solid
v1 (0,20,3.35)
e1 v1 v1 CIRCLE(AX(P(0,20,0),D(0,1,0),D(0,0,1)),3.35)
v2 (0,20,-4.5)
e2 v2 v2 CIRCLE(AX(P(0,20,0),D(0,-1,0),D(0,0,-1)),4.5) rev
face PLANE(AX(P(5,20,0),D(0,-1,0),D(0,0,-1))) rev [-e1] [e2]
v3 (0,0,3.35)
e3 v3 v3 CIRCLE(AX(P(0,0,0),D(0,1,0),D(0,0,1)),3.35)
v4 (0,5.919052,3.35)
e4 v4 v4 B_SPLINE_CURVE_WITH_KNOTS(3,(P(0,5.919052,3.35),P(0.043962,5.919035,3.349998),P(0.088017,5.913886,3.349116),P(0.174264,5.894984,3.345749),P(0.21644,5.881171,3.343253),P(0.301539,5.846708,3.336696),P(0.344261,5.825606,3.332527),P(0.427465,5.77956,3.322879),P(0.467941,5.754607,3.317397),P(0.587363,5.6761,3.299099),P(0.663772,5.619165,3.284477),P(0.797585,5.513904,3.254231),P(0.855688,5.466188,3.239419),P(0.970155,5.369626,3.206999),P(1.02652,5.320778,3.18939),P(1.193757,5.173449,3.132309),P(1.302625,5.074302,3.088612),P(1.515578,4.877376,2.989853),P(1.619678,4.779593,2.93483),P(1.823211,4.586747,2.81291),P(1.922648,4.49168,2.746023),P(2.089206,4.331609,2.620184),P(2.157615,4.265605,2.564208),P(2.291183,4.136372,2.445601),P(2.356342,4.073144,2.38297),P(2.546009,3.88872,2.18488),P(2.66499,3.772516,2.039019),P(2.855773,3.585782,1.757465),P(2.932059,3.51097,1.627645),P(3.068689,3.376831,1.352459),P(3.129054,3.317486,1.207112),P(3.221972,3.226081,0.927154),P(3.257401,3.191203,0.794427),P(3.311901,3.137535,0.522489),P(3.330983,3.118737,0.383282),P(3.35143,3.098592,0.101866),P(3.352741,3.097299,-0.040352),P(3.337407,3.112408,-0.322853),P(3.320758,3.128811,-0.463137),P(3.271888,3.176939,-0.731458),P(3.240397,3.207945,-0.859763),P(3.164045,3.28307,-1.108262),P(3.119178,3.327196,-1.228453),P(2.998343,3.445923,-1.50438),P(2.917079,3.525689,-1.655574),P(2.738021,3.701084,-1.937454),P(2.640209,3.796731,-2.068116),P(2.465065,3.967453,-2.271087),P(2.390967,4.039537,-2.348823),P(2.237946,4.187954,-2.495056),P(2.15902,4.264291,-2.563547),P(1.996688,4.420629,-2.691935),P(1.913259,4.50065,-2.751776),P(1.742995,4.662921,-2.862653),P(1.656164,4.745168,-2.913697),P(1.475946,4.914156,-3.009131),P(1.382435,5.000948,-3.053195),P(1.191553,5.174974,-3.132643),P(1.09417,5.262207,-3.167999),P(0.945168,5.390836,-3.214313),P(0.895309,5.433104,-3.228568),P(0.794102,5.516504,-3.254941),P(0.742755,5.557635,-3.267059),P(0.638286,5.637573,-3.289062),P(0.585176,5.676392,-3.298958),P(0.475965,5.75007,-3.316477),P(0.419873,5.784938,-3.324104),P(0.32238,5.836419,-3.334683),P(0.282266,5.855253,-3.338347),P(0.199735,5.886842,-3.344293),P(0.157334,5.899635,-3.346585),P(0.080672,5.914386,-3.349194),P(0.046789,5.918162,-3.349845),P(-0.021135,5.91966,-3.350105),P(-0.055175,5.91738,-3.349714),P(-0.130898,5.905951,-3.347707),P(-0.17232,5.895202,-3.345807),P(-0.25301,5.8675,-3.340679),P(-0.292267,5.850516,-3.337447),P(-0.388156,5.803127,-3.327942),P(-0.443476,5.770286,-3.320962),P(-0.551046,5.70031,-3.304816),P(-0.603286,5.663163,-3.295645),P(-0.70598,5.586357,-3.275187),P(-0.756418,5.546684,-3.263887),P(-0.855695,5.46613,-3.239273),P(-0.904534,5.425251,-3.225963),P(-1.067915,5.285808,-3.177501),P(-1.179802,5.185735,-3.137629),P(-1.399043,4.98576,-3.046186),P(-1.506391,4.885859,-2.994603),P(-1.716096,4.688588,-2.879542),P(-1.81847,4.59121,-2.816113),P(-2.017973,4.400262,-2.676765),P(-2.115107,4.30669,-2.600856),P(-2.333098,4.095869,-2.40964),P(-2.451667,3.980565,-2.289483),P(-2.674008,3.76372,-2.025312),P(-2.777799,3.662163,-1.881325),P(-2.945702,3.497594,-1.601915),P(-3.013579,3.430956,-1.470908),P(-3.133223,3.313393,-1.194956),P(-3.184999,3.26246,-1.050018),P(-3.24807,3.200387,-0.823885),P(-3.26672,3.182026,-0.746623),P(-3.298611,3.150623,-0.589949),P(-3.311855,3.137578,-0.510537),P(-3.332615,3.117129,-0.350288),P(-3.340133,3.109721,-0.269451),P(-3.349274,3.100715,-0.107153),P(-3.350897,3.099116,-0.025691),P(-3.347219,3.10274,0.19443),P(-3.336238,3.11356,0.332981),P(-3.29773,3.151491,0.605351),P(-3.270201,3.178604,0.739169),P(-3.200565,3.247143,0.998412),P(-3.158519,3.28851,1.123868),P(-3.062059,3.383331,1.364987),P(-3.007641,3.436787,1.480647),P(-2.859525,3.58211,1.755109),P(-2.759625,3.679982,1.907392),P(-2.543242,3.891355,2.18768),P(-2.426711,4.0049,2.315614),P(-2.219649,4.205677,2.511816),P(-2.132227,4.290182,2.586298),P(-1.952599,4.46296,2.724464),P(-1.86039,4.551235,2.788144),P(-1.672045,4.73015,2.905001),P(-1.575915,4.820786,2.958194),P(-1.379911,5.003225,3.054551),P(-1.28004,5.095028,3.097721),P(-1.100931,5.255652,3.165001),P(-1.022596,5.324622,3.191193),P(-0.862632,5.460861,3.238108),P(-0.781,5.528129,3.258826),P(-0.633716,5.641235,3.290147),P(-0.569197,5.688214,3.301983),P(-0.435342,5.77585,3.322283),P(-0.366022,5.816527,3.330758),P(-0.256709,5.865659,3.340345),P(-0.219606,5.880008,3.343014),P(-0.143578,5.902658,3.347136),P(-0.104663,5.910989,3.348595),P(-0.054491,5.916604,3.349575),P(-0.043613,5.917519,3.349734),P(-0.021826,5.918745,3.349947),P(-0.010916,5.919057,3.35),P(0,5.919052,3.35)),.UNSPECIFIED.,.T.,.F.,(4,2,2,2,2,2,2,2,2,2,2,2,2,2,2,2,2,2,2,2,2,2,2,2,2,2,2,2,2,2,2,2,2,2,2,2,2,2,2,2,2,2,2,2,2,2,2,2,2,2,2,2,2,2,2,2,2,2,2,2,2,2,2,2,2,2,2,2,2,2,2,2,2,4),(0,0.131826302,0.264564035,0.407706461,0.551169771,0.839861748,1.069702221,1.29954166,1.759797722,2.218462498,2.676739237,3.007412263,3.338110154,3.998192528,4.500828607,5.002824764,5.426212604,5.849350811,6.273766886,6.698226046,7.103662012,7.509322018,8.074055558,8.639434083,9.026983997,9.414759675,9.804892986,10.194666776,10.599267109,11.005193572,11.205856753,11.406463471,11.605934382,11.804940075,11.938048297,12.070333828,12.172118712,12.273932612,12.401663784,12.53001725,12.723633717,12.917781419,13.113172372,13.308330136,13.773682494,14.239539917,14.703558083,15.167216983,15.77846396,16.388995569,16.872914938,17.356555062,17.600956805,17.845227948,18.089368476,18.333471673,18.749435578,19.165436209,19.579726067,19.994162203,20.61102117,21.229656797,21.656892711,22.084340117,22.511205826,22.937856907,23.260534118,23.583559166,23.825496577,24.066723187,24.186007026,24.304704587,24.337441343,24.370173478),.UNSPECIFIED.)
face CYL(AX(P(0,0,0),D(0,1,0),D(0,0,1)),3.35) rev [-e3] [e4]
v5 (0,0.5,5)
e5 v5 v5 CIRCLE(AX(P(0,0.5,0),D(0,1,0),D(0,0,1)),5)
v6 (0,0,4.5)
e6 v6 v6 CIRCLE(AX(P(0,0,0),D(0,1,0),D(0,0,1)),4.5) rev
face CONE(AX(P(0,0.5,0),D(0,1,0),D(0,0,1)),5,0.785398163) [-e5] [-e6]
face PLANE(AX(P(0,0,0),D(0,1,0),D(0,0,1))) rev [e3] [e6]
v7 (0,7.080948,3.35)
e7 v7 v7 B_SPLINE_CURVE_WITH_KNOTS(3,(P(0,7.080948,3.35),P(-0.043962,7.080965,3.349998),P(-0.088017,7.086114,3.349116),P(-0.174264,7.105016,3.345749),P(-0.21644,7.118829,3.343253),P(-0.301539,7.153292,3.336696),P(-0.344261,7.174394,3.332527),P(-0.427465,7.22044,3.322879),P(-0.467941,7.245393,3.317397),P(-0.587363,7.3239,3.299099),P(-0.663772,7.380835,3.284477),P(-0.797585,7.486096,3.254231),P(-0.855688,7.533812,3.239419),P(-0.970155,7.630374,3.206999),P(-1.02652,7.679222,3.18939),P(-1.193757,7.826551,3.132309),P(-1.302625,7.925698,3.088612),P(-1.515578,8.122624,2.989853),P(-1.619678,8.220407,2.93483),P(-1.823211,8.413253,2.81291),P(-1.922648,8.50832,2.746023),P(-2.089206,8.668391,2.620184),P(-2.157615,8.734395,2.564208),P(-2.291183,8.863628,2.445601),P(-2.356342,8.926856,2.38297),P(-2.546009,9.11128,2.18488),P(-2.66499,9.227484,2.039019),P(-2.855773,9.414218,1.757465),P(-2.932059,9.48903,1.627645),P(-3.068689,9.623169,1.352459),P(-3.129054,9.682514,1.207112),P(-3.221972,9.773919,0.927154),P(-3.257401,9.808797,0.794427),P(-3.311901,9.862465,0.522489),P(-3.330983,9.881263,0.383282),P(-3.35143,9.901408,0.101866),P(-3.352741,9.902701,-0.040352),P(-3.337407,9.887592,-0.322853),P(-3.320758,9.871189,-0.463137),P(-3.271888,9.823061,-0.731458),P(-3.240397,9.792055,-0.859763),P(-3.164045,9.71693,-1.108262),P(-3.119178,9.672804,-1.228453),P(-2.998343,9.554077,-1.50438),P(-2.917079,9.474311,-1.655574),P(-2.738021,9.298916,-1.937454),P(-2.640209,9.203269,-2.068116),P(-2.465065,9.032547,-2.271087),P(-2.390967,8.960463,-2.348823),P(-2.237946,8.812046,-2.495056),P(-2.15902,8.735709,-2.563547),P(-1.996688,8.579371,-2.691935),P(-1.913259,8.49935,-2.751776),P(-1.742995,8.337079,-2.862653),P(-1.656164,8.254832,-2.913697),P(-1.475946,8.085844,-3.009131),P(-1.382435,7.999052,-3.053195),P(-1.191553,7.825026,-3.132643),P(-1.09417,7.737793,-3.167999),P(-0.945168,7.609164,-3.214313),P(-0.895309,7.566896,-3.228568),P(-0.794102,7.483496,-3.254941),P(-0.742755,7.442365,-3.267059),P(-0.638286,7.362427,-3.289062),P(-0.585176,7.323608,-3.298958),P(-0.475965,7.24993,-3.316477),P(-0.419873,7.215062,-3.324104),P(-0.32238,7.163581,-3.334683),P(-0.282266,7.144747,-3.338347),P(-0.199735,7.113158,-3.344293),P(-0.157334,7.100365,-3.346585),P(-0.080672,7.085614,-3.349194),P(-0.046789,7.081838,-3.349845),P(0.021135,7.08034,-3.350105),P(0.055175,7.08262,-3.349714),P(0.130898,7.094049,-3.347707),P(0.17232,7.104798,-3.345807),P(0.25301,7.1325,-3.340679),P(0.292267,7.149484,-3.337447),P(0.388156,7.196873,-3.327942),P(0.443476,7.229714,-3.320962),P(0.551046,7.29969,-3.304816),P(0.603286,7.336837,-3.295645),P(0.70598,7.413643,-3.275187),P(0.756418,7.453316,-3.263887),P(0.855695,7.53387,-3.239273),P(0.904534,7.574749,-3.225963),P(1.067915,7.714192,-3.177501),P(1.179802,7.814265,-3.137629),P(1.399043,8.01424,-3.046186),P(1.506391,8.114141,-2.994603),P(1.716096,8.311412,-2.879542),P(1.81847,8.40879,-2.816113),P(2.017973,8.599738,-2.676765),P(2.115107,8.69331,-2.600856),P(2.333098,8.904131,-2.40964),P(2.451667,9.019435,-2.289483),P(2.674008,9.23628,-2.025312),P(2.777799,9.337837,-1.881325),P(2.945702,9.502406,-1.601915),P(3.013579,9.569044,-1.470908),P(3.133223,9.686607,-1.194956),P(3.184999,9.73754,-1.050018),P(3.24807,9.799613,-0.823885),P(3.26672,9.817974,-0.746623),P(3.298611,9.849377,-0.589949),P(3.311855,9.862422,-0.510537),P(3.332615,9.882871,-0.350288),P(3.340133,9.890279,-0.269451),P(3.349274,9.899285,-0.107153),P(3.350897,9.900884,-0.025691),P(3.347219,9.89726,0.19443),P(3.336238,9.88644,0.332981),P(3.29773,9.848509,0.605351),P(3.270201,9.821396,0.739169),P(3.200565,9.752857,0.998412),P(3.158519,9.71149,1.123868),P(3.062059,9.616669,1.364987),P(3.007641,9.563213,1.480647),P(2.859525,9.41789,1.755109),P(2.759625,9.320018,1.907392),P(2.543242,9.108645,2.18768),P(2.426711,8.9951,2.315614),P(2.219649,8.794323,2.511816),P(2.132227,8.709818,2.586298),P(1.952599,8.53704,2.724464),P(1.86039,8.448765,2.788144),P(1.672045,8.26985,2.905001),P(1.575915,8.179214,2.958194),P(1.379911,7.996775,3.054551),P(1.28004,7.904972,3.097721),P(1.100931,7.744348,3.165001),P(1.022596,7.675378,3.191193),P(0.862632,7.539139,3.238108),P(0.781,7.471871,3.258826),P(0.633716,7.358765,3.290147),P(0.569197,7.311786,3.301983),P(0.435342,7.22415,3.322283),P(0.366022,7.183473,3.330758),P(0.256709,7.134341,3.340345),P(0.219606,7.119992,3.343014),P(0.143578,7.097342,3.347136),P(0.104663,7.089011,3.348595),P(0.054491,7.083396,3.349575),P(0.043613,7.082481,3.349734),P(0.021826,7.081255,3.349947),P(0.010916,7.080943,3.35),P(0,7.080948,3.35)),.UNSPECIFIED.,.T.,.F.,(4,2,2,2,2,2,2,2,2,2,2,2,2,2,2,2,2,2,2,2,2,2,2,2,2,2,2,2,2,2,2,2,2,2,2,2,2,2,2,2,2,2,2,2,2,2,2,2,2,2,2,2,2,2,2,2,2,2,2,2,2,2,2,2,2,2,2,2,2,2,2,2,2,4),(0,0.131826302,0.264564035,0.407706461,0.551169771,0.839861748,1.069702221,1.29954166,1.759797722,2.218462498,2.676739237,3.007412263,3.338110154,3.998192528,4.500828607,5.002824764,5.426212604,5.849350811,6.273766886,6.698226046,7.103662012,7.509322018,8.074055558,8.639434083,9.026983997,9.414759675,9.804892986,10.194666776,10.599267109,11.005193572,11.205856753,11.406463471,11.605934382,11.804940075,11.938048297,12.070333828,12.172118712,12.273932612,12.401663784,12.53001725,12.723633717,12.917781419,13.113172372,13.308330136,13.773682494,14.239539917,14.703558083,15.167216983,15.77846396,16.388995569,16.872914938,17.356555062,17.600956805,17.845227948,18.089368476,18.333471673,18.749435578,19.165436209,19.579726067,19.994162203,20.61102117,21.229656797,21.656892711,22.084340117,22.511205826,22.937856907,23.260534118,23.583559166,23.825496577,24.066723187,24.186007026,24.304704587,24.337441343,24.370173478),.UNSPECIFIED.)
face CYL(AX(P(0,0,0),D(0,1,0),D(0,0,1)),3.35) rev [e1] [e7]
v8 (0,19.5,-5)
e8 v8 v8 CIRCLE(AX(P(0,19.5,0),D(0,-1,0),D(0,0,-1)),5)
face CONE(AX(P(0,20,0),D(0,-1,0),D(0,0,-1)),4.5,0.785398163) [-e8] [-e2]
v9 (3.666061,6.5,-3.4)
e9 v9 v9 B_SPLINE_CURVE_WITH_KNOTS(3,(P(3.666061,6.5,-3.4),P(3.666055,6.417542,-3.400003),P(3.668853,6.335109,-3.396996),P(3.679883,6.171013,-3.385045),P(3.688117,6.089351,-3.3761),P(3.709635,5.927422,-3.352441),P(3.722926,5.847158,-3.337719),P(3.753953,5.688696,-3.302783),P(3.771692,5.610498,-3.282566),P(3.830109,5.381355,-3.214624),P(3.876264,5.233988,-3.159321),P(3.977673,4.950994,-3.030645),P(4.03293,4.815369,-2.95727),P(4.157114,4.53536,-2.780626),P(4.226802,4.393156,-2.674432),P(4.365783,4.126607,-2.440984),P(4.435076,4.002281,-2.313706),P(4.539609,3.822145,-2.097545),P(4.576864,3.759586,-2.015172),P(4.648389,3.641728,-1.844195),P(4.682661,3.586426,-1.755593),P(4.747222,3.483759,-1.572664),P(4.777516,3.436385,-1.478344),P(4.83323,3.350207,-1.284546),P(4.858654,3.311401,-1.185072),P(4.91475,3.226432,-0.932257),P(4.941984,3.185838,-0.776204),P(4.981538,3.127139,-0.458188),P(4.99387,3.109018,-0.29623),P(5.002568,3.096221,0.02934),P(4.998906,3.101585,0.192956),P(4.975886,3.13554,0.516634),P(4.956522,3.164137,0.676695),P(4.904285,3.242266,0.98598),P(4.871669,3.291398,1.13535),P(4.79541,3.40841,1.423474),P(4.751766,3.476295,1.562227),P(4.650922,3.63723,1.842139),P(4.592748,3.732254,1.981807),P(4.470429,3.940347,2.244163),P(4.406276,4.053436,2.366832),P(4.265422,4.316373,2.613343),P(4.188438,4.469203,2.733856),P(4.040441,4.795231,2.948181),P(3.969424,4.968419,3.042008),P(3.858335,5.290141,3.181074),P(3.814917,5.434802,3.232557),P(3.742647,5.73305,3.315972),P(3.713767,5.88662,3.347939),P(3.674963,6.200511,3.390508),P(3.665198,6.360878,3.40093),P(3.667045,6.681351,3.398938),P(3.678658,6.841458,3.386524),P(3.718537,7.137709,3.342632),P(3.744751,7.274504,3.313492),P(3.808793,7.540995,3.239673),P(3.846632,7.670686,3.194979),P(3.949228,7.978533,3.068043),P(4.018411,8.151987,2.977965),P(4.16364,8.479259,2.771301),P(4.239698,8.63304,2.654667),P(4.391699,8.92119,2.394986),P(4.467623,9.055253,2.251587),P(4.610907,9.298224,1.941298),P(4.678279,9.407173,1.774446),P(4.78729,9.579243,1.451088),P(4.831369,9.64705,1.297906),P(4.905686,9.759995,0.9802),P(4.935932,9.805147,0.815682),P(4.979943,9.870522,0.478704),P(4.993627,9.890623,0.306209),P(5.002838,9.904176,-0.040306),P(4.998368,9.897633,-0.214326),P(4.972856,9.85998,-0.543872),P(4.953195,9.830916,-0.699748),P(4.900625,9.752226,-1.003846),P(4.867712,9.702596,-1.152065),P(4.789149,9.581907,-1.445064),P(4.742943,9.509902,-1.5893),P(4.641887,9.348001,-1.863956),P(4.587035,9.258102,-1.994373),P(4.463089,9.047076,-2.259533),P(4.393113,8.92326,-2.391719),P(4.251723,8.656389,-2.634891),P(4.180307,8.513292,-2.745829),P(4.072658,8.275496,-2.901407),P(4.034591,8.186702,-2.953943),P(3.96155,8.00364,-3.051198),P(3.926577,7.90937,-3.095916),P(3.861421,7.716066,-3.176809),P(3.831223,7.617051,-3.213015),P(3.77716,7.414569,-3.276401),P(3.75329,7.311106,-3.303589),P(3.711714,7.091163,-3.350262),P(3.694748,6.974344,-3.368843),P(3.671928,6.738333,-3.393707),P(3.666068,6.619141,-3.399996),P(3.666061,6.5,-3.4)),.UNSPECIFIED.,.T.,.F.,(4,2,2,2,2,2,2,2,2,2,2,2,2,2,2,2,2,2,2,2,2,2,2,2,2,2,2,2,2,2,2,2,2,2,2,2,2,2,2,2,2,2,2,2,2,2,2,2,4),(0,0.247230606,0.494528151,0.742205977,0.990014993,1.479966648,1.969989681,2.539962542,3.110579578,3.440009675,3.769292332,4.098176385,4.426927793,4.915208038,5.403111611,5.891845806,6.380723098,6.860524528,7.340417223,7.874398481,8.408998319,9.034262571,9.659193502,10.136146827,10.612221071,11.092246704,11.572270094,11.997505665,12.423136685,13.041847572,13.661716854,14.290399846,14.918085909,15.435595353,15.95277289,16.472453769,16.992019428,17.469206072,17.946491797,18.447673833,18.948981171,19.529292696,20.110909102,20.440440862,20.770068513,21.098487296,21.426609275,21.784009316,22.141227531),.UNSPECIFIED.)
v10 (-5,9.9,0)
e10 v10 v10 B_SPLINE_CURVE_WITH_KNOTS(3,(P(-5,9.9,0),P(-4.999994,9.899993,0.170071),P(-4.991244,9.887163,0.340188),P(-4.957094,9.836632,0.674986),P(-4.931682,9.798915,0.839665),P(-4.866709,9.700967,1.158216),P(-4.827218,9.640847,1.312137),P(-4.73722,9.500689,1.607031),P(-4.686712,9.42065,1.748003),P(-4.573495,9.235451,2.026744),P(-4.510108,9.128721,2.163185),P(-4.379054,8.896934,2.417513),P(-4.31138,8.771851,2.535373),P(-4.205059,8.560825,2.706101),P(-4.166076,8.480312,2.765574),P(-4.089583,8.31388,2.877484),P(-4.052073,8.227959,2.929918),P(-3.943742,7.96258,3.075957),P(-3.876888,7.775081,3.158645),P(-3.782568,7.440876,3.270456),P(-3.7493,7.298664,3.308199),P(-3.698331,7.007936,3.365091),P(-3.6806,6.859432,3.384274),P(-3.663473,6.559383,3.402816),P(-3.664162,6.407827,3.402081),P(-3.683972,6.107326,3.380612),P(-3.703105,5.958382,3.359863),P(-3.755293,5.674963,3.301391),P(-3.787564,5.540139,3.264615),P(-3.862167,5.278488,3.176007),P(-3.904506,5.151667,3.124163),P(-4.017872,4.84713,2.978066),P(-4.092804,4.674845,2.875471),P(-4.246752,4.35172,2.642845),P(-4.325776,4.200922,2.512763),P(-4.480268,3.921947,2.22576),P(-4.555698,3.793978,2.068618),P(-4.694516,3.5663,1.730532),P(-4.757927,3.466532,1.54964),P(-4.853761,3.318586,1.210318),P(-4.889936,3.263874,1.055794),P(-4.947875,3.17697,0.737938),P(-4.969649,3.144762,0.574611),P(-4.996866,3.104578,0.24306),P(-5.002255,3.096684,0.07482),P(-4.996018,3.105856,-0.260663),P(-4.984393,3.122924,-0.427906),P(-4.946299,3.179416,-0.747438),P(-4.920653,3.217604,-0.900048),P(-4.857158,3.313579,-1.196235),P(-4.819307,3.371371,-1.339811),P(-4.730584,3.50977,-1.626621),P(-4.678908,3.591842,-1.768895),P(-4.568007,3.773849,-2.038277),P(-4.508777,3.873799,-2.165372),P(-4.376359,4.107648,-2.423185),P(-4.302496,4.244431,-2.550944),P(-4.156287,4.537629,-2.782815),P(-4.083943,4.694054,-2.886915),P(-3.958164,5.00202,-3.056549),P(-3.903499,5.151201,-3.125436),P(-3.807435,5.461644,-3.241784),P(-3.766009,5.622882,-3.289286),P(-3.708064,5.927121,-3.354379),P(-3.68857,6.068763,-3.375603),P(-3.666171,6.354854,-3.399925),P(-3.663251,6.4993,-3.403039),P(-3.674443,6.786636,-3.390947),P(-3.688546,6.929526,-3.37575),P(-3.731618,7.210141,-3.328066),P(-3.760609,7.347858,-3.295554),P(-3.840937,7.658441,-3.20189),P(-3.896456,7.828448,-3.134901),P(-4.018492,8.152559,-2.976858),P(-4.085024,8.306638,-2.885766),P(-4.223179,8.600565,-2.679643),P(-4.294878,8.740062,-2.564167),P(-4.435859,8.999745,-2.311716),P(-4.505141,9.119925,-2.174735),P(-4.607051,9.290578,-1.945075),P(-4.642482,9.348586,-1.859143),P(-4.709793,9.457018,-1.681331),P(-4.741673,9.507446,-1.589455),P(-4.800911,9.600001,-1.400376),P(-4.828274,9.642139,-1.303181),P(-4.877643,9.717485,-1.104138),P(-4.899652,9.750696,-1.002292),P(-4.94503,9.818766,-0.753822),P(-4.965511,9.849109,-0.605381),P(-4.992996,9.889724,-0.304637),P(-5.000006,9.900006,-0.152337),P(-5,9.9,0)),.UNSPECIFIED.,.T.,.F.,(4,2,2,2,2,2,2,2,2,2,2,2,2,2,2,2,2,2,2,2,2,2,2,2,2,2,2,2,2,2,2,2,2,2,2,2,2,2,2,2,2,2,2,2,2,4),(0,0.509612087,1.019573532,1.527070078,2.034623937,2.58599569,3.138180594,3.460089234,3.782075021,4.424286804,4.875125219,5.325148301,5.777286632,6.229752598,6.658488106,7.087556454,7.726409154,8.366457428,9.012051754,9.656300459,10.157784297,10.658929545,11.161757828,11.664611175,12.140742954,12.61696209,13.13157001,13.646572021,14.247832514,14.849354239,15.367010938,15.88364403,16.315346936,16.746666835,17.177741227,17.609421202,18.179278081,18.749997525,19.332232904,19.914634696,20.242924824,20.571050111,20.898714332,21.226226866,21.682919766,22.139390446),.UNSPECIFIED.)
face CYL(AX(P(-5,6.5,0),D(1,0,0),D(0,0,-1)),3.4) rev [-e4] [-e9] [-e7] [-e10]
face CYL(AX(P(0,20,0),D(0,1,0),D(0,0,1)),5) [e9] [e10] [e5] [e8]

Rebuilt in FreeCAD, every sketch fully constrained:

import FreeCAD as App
import Part
import Sketcher
from FreeCAD import Vector


def edges_at(feature, points):
    """Names of the edges that pass closest to the given points."""
    edges = feature.Shape.Edges
    near = lambda p: min(range(len(edges)), key=lambda i: edges[i].distToShape(Part.Vertex(*p))[0])
    return sorted({f"Edge{near(p) + 1}" for p in points})


def add_polygon(sketch, points):
    """Adds a closed chain of lines whose ends are joined by coincident constraints."""
    first, n = sketch.GeometryCount, len(points)
    for a, b in zip(points, points[1:] + points[:1]):
        sketch.addGeometry(Part.LineSegment(App.Vector(*a, 0), App.Vector(*b, 0)), False)
    for i in range(n):
        sketch.addConstraint(Sketcher.Constraint("Coincident", first + i, 2, first + (i + 1) % n, 1))

doc = App.newDocument("Part")
params = doc.addObject("Spreadsheet::Sheet", "Params")
for row, (alias, value) in enumerate([
    ("sketch1_width", "5 mm"),
    ("sketch1_height", "20 mm"),
    ("revolution_angle", "360 deg"),
    ("sketch2_diameter", "6.7 mm"),
    ("sketch3_diameter", "6.8 mm"),
    ("chamfer_size", "0.5 mm"),
], start=1):
    params.set(f"A{row}", alias)
    params.set(f"B{row}", "=" + value)
    params.setAlias(f"B{row}", alias)

body = doc.addObject("PartDesign::Body", "Body")

# Sketch on XY plane
sketch1 = doc.addObject("Sketcher::SketchObject", "Sketch")
body.addObject(sketch1)
sketch1.AttachmentSupport = (doc.XY_Plane, [""])
sketch1.MapMode = "FlatFace"
add_polygon(sketch1, [(0, 20), (0, 0), (5, 0), (5, 20)])  # lines 0-3
sketch1.addConstraint([
    Sketcher.Constraint("Vertical", 0),
    Sketcher.Constraint("Horizontal", 1),
    Sketcher.Constraint("Vertical", 2),
    Sketcher.Constraint("Horizontal", 3),
    Sketcher.Constraint("Coincident", 0, 2, -1, 1),
    Sketcher.Constraint("DistanceX", 1, 1, 1, 2, 5.0),
    Sketcher.Constraint("DistanceY", 0, 2, 0, 1, 20.0),
])
sketch1.setExpression("Constraints[9]", "Params.sketch1_width")
sketch1.setExpression("Constraints[10]", "Params.sketch1_height")
revolution = doc.addObject("PartDesign::Revolution", "Revolution")
body.addObject(revolution)
revolution.Profile = sketch1
revolution.ReferenceAxis = (sketch1, ["V_Axis"])
revolution.setExpression("Angle", "Params.revolution_angle")

# Sketch on XZ plane
sketch2 = doc.addObject("Sketcher::SketchObject", "Sketch001")
body.addObject(sketch2)
sketch2.AttachmentSupport = (doc.XZ_Plane, [""])
sketch2.MapMode = "FlatFace"
sketch2.AttachmentOffset = App.Placement(Vector(0, 0, -20), App.Rotation())
sketch2.addGeometry(Part.Circle(Vector(0, 0, 0), Vector(0, 0, 1), 3.4), False)
sketch2.addConstraint([
    Sketcher.Constraint("Coincident", 0, 3, -1, 1),
    Sketcher.Constraint("Diameter", 0, 6.7),
])
sketch2.setExpression("Constraints[1]", "Params.sketch2_diameter")
pocket1 = doc.addObject("PartDesign::Pocket", "Pocket")
body.addObject(pocket1)
pocket1.Profile = sketch2
pocket1.Type = "ThroughAll"
pocket1.Reversed = True

# Sketch on YZ plane
sketch3 = doc.addObject("Sketcher::SketchObject", "Sketch002")
body.addObject(sketch3)
sketch3.AttachmentSupport = (doc.YZ_Plane, [""])
sketch3.MapMode = "FlatFace"
sketch3.addGeometry(Part.Circle(Vector(6.5, 0, 0), Vector(0, 0, 1), 3.4), False)
sketch3.addConstraint([
    Sketcher.Constraint("PointOnObject", 0, 3, -1),
    Sketcher.Constraint("Diameter", 0, 6.8),
    Sketcher.Constraint("DistanceX", -1, 1, 0, 3, 6.5),
])
sketch3.setExpression("Constraints[1]", "Params.sketch3_diameter")
pocket2 = doc.addObject("PartDesign::Pocket", "Pocket001")
body.addObject(pocket2)
pocket2.Profile = sketch3
pocket2.Type = "ThroughAll"
pocket2.Midplane = True
doc.recompute()

chamfer = doc.addObject("PartDesign::Chamfer", "Chamfer")
body.addObject(chamfer)
chamfer.Base = (pocket2, edges_at(pocket2, [(0, 20, -5), (0, 0, -5)]))
chamfer.setExpression("Size", "Params.chamfer_size")

doc.recompute()
